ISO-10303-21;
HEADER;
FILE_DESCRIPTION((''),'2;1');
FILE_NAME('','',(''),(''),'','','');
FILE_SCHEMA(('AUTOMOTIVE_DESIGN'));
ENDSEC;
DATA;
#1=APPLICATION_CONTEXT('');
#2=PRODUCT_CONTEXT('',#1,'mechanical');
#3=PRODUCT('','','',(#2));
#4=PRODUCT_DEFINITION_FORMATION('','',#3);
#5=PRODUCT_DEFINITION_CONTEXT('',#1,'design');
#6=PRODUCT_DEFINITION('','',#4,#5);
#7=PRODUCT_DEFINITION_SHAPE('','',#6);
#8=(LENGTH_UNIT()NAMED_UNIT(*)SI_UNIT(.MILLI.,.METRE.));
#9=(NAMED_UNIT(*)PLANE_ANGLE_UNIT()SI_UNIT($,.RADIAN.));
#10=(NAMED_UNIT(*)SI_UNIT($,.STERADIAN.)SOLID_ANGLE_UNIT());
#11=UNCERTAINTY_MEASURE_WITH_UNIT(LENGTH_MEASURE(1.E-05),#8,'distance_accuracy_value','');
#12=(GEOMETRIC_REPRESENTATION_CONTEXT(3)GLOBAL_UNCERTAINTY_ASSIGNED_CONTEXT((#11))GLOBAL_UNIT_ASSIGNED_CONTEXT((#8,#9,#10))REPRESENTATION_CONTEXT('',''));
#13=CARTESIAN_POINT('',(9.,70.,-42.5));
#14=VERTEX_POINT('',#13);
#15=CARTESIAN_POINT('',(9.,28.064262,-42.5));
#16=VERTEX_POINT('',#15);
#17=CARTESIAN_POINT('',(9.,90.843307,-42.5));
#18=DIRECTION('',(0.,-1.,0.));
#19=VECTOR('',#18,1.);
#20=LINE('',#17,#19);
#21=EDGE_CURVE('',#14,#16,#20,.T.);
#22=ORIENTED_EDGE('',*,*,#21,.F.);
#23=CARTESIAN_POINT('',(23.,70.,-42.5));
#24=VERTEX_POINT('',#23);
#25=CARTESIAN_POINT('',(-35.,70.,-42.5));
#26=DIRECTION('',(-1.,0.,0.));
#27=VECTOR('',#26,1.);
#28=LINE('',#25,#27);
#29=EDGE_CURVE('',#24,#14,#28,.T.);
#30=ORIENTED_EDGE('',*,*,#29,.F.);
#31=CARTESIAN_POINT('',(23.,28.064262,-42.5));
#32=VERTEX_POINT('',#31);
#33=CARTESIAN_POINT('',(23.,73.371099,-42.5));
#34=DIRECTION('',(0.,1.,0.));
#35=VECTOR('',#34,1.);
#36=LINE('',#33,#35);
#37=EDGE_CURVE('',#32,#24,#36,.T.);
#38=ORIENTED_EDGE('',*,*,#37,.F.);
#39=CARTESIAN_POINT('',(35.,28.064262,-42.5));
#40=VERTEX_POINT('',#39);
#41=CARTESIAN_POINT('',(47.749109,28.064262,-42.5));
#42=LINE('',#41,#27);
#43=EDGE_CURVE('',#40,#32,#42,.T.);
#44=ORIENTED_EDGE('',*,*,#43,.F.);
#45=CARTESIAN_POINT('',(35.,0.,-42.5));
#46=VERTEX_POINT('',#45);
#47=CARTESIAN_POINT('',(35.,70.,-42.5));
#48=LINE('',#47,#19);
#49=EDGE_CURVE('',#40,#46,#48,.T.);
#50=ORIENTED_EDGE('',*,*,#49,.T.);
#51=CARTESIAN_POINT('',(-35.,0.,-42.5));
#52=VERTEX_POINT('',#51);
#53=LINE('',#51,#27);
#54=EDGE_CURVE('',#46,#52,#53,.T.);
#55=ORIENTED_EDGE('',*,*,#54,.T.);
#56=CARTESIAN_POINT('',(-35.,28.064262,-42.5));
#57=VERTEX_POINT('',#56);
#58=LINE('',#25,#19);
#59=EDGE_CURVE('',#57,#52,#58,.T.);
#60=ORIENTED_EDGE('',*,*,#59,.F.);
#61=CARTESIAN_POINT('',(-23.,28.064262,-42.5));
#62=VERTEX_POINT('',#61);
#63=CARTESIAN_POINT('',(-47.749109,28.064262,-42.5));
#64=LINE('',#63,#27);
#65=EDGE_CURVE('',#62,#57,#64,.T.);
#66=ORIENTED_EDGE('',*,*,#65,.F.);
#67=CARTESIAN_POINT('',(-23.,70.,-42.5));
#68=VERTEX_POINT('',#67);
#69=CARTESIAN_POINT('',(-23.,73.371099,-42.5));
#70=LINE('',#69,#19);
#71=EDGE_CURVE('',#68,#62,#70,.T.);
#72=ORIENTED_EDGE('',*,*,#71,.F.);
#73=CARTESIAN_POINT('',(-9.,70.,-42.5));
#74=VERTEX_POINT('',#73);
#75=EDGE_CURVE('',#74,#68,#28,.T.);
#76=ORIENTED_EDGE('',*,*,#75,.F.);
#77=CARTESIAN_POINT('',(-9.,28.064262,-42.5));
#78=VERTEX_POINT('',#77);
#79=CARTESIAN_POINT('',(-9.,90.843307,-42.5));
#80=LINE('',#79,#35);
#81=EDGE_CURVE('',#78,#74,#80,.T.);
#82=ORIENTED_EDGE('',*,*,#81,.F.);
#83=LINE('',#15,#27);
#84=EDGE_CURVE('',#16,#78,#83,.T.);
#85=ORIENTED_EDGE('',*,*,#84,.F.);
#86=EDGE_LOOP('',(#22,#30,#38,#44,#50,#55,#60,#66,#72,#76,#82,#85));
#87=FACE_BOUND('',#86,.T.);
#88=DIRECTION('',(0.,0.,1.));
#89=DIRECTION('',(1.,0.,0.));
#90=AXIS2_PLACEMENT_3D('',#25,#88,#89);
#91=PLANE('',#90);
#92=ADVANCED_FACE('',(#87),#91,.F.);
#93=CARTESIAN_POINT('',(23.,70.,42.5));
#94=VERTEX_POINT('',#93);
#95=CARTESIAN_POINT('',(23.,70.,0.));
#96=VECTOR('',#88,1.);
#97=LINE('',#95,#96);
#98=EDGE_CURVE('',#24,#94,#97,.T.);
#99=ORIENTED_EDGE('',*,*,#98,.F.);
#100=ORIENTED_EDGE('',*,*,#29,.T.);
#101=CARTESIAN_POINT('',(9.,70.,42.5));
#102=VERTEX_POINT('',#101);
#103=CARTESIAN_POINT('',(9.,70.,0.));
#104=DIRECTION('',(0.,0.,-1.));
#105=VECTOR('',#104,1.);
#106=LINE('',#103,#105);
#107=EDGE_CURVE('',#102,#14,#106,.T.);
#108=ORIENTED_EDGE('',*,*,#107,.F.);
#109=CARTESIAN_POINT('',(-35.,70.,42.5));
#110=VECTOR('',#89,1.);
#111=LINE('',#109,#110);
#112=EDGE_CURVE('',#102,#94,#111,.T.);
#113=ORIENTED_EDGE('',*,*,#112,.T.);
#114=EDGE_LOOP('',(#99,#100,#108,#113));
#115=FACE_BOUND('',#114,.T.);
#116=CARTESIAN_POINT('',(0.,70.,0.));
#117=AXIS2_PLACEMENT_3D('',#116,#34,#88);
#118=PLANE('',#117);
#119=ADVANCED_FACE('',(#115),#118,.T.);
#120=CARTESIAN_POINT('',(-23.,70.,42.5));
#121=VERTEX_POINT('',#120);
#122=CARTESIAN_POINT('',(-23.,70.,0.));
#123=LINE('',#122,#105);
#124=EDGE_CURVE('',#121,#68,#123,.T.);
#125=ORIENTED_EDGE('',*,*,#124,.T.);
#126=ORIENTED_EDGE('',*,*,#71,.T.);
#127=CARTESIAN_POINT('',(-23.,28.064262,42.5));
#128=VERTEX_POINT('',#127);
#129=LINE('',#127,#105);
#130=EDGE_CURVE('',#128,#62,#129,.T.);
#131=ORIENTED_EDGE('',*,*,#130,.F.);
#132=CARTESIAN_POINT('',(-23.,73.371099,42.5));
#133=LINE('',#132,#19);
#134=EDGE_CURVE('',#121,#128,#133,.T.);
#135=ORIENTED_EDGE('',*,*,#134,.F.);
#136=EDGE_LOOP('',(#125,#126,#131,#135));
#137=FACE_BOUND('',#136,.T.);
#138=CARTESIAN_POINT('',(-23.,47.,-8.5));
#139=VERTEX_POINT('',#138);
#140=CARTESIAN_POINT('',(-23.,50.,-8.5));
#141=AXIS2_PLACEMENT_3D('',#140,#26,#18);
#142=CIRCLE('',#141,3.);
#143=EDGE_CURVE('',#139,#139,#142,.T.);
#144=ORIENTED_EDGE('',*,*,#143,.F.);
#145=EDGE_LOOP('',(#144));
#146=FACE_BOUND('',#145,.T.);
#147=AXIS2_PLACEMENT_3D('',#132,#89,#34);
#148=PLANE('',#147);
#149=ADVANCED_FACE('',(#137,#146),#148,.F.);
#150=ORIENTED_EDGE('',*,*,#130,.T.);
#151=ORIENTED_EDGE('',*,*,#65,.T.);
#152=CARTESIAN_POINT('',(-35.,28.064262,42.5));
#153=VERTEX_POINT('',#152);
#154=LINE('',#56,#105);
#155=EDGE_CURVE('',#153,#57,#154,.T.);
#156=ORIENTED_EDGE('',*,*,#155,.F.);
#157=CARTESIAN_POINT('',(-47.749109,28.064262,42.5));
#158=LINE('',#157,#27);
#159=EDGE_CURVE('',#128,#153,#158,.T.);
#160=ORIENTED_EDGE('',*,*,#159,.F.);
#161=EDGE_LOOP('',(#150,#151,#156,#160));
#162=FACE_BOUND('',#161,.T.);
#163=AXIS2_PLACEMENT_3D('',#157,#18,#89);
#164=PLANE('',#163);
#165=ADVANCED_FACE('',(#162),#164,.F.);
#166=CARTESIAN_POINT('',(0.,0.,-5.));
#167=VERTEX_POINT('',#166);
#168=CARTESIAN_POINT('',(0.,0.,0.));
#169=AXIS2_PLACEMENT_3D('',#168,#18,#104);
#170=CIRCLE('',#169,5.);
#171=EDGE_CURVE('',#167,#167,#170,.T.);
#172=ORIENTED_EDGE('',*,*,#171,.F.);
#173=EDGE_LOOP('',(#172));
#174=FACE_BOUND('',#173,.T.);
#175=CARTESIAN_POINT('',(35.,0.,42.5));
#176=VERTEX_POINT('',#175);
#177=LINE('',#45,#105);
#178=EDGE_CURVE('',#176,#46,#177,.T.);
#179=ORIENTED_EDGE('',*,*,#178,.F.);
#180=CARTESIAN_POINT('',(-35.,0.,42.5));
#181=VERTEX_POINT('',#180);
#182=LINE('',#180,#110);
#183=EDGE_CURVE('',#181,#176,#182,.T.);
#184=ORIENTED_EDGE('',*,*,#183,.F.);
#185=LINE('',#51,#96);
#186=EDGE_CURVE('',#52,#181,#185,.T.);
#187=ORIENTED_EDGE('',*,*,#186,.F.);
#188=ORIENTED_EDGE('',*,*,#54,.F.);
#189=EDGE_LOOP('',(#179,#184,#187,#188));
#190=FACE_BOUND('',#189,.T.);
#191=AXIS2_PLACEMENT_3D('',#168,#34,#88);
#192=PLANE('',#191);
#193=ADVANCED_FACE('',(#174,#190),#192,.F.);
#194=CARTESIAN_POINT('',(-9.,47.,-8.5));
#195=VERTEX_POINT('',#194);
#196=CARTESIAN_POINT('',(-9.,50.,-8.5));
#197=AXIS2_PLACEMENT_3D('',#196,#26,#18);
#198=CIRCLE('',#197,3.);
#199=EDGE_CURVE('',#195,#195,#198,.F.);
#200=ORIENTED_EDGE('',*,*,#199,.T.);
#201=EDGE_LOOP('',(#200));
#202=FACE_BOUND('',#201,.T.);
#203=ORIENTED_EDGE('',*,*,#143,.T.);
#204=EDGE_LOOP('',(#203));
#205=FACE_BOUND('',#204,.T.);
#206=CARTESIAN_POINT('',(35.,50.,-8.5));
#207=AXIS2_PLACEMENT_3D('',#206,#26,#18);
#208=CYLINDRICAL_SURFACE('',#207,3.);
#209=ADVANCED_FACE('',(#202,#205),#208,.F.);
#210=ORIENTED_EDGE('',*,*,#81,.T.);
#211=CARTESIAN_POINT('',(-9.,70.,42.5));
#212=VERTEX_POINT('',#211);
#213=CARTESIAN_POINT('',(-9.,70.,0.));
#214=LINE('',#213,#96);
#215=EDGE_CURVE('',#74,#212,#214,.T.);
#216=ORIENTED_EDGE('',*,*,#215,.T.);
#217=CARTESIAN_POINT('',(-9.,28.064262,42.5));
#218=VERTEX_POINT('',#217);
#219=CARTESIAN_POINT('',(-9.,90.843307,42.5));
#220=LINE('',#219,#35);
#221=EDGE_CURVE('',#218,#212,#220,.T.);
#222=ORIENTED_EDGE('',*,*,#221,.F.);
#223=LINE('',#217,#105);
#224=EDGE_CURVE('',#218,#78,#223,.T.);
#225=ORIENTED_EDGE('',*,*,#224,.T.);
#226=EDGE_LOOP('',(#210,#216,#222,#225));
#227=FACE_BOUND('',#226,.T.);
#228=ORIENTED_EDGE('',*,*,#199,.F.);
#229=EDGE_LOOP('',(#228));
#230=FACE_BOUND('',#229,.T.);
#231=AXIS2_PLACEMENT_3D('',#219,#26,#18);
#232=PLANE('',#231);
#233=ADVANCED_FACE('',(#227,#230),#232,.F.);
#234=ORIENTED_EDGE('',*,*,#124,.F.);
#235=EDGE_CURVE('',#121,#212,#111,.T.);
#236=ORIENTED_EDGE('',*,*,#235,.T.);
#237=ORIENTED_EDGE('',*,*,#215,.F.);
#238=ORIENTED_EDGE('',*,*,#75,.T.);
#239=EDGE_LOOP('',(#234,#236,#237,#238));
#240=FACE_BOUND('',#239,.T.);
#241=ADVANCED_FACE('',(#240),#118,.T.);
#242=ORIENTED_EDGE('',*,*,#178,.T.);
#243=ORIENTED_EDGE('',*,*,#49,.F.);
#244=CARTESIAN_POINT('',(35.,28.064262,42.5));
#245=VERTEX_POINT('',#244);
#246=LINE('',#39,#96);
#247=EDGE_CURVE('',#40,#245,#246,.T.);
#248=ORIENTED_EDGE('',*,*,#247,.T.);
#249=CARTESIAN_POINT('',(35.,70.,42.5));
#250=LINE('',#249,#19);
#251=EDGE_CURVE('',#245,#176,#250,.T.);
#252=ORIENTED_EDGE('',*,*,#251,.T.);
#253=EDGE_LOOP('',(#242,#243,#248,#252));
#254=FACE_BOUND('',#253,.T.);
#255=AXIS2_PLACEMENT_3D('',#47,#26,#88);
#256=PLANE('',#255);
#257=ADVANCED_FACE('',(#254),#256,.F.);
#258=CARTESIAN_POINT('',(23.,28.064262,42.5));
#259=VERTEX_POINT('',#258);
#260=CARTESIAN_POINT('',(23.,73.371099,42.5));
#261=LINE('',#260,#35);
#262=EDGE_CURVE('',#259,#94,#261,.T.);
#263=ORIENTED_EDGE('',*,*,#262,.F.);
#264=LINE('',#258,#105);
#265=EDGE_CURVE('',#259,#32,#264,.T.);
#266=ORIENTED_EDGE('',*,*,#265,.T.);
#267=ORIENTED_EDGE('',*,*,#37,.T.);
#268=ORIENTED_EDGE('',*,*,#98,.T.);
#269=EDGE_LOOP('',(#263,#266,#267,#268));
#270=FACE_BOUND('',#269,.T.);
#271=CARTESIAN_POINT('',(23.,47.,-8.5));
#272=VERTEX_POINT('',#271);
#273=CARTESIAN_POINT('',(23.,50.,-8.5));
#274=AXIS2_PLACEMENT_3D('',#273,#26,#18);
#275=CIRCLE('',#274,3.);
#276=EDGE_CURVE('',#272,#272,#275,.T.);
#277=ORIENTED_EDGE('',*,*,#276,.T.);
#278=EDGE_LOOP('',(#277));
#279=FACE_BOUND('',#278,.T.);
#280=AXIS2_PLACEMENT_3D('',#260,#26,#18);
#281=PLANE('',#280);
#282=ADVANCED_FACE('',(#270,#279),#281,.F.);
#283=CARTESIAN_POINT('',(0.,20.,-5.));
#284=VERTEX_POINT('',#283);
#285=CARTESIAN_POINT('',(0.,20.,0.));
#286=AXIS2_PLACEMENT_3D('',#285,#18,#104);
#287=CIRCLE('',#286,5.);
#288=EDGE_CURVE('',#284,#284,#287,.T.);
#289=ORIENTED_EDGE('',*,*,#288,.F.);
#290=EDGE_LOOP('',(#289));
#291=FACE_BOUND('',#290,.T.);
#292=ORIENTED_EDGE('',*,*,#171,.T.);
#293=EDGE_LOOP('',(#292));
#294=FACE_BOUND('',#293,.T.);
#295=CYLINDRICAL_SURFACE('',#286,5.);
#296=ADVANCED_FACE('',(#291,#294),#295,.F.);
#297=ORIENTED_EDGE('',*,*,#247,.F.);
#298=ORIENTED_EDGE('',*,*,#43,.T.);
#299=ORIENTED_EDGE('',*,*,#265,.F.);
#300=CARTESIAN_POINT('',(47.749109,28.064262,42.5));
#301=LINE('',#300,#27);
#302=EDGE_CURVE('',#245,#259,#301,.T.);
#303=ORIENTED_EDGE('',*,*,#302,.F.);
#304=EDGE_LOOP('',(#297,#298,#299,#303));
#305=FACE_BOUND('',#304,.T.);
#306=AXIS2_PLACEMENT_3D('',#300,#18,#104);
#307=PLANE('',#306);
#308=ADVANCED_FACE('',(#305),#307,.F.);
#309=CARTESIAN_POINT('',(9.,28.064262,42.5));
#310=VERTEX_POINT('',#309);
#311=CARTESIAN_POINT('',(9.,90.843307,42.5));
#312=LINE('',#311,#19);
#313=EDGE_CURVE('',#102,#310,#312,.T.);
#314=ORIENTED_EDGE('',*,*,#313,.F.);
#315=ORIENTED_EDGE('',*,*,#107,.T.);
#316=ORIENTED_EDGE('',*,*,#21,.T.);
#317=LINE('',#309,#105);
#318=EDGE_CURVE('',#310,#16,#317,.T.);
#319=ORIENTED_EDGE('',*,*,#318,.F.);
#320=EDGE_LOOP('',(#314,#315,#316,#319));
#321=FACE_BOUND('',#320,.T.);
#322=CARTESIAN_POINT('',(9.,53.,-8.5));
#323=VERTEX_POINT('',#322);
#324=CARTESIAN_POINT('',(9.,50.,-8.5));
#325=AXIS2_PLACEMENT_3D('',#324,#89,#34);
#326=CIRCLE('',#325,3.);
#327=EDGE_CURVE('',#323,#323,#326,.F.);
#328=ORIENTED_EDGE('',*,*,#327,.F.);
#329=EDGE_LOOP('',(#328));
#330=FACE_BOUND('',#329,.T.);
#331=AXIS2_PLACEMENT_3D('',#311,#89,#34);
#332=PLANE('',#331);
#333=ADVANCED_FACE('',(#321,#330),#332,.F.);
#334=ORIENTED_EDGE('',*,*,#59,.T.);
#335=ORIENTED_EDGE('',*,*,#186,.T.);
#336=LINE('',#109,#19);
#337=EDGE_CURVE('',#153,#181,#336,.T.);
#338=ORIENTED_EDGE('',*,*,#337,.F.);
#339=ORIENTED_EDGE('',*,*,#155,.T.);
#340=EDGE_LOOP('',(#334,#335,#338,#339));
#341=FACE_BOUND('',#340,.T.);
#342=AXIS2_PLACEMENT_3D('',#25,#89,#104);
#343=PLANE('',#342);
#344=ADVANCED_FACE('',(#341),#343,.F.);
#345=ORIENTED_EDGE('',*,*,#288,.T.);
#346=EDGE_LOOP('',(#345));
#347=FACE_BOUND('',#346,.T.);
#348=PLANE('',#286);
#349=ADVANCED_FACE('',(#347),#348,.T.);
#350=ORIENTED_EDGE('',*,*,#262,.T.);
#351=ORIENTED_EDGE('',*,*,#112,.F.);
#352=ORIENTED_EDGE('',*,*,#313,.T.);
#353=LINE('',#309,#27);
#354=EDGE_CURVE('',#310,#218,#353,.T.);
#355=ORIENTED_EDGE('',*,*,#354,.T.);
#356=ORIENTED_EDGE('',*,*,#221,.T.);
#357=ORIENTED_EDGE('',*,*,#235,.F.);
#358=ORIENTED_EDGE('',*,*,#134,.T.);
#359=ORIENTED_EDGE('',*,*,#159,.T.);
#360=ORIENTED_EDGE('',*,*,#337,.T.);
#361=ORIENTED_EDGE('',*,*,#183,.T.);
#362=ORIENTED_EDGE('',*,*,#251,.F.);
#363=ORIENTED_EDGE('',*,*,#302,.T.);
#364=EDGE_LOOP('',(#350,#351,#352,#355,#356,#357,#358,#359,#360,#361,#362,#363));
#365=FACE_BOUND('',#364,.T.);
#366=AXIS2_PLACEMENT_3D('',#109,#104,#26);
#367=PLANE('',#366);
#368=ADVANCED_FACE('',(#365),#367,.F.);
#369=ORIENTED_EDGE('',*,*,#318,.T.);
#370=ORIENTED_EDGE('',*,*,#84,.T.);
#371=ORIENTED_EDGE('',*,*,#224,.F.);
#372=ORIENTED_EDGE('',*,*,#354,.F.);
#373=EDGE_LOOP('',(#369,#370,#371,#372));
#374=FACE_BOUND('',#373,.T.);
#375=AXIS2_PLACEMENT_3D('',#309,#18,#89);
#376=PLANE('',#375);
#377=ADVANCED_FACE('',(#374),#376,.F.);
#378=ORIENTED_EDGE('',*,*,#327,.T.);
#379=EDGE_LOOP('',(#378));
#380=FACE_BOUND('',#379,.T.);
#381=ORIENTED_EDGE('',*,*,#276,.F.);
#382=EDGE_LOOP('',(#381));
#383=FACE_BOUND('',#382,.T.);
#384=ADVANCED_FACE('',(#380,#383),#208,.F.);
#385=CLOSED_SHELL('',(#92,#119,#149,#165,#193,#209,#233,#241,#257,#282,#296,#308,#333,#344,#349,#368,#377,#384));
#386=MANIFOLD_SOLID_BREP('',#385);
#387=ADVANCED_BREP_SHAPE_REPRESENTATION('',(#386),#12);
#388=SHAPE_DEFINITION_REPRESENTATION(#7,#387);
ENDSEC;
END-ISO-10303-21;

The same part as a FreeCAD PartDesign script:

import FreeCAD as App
import Part
import Sketcher
Q = App.Units.Quantity


def add_polygon(sketch, points):
    """Adds a closed chain of lines whose ends are joined by coincident constraints."""
    first, n = sketch.GeometryCount, len(points)
    for a, b in zip(points, points[1:] + points[:1]):
        sketch.addGeometry(Part.LineSegment(App.Vector(*a, 0), App.Vector(*b, 0)), False)
    for i in range(n):
        sketch.addConstraint(Sketcher.Constraint("Coincident", first + i, 2, first + (i + 1) % n, 1))

doc = App.newDocument("Part")
params = doc.addObject("Spreadsheet::Sheet", "Params")
for row, (alias, value) in enumerate([
    ("sketch1_width", "70 mm"),
    ("sketch1_height", "85 mm"),
    ("pad1_length", "70 mm"),
    ("sketch2_diameter", "10 mm"),
    ("pocket1_length", "20 mm"),
    ("sketch4_diameter", "6 mm"),
    ("sketch5_width", "18 mm"),
], start=1):
    params.set(f"A{row}", alias)
    params.set(f"B{row}", "=" + value)
    params.setAlias(f"B{row}", alias)

body = doc.addObject("PartDesign::Body", "Body")

# Sketch on XZ plane
sketch1 = body.newObject("Sketcher::SketchObject", "Sketch")
sketch1.AttachmentSupport = (doc.getObject("XZ_Plane"), [""])
sketch1.MapMode = "FlatFace"
add_polygon(sketch1, [(-35, -42.5), (-35, 42.5), (35, 42.5), (35, -42.5)])  # lines 0-3
sketch1.addConstraint([
    Sketcher.Constraint("Vertical", 0),
    Sketcher.Constraint("Horizontal", 1),
    Sketcher.Constraint("Vertical", 2),
    Sketcher.Constraint("Horizontal", 3),
    Sketcher.Constraint("Symmetric", 0, 2, 2, 2, -1, 1),
    Sketcher.Constraint("DistanceX", 1, 1, 1, 2, Q("70 mm")),
    Sketcher.Constraint("DistanceY", 0, 1, 0, 2, Q("85 mm")),
])
sketch1.setExpression("Constraints[9]", "Params.sketch1_width")
sketch1.setExpression("Constraints[10]", "Params.sketch1_height")
pad1 = body.newObject("PartDesign::Pad", "Pad")
pad1.Profile = sketch1
pad1.setExpression("Length", "Params.pad1_length")
pad1.Reversed = True

# Sketch on XZ plane
sketch2 = body.newObject("Sketcher::SketchObject", "Sketch001")
sketch2.AttachmentSupport = (doc.getObject("XZ_Plane"), [""])
sketch2.MapMode = "FlatFace"
sketch2.addGeometry(Part.Circle(App.Vector(0, 0, 0), App.Vector(0, 0, 1), 5), False)
sketch2.addConstraint([
    Sketcher.Constraint("Coincident", 0, 3, -1, 1),
    Sketcher.Constraint("Diameter", 0, Q("10 mm")),
])
sketch2.setExpression("Constraints[1]", "Params.sketch2_diameter")
pocket1 = body.newObject("PartDesign::Pocket", "Pocket")
pocket1.Profile = sketch2
pocket1.setExpression("Length", "Params.pocket1_length")

# Sketch on XY plane
sketch3 = body.newObject("Sketcher::SketchObject", "Sketch002")
sketch3.AttachmentSupport = (doc.getObject("XY_Plane"), [""])
sketch3.MapMode = "FlatFace"
sketch3.AttachmentOffset = App.Placement(App.Vector(0, 0, -42.5), App.Rotation())
add_polygon(sketch3, [(47.749109, 73.371099), (47.749109, 28.064262), (23, 28.064262), (23, 73.371099)])  # lines 0-3
add_polygon(sketch3, [(-23, 73.371099), (-23, 28.064262), (-47.749109, 28.064262), (-47.749109, 73.371099)])  # lines 4-7
sketch3.addConstraint([
    Sketcher.Constraint("Vertical", 0),
    Sketcher.Constraint("Horizontal", 1),
    Sketcher.Constraint("Vertical", 2),
    Sketcher.Constraint("Horizontal", 3),
    Sketcher.Constraint("Vertical", 4),
    Sketcher.Constraint("Horizontal", 5),
    Sketcher.Constraint("Vertical", 6),
    Sketcher.Constraint("Horizontal", 7),
    Sketcher.Constraint("Symmetric", 1, 2, 4, 2, -2),
    Sketcher.Constraint("Symmetric", 3, 2, 6, 2, -2),
    Sketcher.Constraint("DistanceX", -1, 1, 1, 2, Q("23 mm")),
    Sketcher.Constraint("DistanceX", 1, 2, 1, 1, Q("24.749109 mm")),
    Sketcher.Constraint("DistanceY", -1, 1, 2, 2, Q("73.371099 mm")),
    Sketcher.Constraint("DistanceY", 0, 2, 0, 1, Q("45.306837 mm")),
])
pocket2 = body.newObject("PartDesign::Pocket", "Pocket001")
pocket2.Profile = sketch3
pocket2.Type = "ThroughAll"
pocket2.Reversed = True

# Sketch on YZ plane
sketch4 = body.newObject("Sketcher::SketchObject", "Sketch003")
sketch4.AttachmentSupport = (doc.getObject("YZ_Plane"), [""])
sketch4.MapMode = "FlatFace"
sketch4.AttachmentOffset = App.Placement(App.Vector(0, 0, -23), App.Rotation())
sketch4.addGeometry(Part.Circle(App.Vector(50, -8.5, 0), App.Vector(0, 0, 1), 3), False)
sketch4.addConstraint([
    Sketcher.Constraint("Diameter", 0, Q("6 mm")),
    Sketcher.Constraint("DistanceX", -1, 1, 0, 3, Q("50 mm")),
    Sketcher.Constraint("DistanceY", 0, 3, -1, 1, Q("8.5 mm")),
])
sketch4.setExpression("Constraints[0]", "Params.sketch4_diameter")
pocket3 = body.newObject("PartDesign::Pocket", "Pocket002")
pocket3.Profile = sketch4
pocket3.Type = "ThroughAll"
pocket3.Reversed = True

# Sketch on XY plane
sketch5 = body.newObject("Sketcher::SketchObject", "Sketch004")
sketch5.AttachmentSupport = (doc.getObject("XY_Plane"), [""])
sketch5.MapMode = "FlatFace"
sketch5.AttachmentOffset = App.Placement(App.Vector(0, 0, -42.5), App.Rotation())
add_polygon(sketch5, [(9, 90.843307), (9, 28.064262), (-9, 28.064262), (-9, 90.843307)])  # lines 0-3
sketch5.addConstraint([
    Sketcher.Constraint("Vertical", 0),
    Sketcher.Constraint("Horizontal", 1),
    Sketcher.Constraint("Vertical", 2),
    Sketcher.Constraint("Horizontal", 3),
    Sketcher.Constraint("DistanceX", 1, 2, 1, 1, Q("18 mm")),
    Sketcher.Constraint("DistanceX", -1, 1, 0, 2, Q("9 mm")),
    Sketcher.Constraint("DistanceY", 0, 2, 0, 1, Q("62.779045 mm")),
    Sketcher.Constraint("DistanceY", -1, 1, 0, 2, Q("28.064262 mm")),
])
sketch5.setExpression("Constraints[8]", "Params.sketch5_width")
pocket4 = body.newObject("PartDesign::Pocket", "Pocket003")
pocket4.Profile = sketch5
pocket4.Type = "ThroughAll"
pocket4.Reversed = True

doc.recompute()
